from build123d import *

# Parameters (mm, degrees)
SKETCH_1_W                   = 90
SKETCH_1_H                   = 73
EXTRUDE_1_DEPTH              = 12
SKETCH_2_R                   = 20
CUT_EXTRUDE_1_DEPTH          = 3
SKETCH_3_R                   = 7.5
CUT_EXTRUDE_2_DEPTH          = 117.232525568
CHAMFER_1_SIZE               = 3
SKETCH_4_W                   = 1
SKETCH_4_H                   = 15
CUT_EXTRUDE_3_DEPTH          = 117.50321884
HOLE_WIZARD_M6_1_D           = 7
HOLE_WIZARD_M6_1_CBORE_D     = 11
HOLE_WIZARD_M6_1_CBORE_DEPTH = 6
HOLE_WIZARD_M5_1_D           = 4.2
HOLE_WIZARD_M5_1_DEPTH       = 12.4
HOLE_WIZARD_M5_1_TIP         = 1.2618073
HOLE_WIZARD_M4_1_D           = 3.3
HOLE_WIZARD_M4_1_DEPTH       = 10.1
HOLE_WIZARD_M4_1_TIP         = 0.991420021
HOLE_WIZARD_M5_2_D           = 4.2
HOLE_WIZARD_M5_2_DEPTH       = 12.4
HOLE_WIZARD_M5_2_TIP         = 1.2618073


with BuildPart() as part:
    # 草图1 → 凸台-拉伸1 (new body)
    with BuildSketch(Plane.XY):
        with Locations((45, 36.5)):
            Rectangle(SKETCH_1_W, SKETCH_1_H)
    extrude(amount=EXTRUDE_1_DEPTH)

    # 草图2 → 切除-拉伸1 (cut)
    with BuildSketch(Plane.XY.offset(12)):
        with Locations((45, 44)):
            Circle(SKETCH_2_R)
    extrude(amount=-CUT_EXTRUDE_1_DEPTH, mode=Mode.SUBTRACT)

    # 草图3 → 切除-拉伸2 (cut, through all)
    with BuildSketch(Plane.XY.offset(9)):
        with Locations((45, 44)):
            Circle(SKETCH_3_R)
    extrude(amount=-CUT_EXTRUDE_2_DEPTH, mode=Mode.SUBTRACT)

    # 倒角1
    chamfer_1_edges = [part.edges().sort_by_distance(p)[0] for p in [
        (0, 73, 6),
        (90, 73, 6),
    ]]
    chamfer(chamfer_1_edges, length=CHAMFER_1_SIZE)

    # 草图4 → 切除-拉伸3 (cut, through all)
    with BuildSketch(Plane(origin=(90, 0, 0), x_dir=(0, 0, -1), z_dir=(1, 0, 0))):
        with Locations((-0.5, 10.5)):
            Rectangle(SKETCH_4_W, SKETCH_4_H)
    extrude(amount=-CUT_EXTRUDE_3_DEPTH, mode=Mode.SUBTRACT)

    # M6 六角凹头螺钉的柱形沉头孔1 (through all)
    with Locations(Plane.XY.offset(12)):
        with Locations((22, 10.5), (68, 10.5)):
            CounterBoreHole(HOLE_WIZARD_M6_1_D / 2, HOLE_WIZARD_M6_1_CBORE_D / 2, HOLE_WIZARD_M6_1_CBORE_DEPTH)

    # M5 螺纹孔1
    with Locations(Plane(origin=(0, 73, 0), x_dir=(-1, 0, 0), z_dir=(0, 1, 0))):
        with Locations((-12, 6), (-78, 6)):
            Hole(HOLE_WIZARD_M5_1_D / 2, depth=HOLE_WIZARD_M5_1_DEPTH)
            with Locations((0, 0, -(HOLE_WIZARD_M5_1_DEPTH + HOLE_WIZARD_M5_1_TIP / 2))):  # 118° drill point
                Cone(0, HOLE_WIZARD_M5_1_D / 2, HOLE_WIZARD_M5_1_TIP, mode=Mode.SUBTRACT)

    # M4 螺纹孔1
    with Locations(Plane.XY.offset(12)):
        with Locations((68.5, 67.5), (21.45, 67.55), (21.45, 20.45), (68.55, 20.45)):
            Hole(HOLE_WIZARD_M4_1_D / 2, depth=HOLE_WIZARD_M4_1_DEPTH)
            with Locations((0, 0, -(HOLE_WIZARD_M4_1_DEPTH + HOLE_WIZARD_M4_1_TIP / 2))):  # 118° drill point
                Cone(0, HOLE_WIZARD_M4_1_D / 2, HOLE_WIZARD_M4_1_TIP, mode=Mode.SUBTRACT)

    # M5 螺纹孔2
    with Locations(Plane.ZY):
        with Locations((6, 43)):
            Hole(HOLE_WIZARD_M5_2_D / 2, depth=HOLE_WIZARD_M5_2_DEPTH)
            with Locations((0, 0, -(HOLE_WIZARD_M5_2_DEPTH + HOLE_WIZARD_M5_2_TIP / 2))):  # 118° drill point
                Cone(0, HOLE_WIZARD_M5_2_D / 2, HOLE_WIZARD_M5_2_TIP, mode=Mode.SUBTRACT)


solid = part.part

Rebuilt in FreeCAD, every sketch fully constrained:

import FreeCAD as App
import Part
import Sketcher
from FreeCAD import Vector


def edges_at(feature, points):
    """Names of the edges that pass closest to the given points."""
    edges = feature.Shape.Edges
    near = lambda p: min(range(len(edges)), key=lambda i: edges[i].distToShape(Part.Vertex(*p))[0])
    return sorted({f"Edge{near(p) + 1}" for p in points})

doc = App.newDocument("Part")
body = doc.addObject("PartDesign::Body", "Body")

# Sketch on XY plane
sketch1 = body.newObject("Sketcher::SketchObject", "Sketch")
sketch1.AttachmentSupport = (doc.getObject("XY_Plane"), [""])
sketch1.MapMode = "FlatFace"
sketch1.addGeometry([
    Part.LineSegment(Vector(0, 73, 0), Vector(0, 0, 0)),
    Part.LineSegment(Vector(0, 0, 0), Vector(90, 0, 0)),
    Part.LineSegment(Vector(90, 0, 0), Vector(90, 73, 0)),
    Part.LineSegment(Vector(90, 73, 0), Vector(0, 73, 0)),
], False)
sketch1.addConstraint([
    Sketcher.Constraint("Coincident", 0, 2, 1, 1),
    Sketcher.Constraint("Coincident", 1, 2, 2, 1),
    Sketcher.Constraint("Coincident", 2, 2, 3, 1),
    Sketcher.Constraint("Coincident", 3, 2, 0, 1),
    Sketcher.Constraint("Vertical", 0),
    Sketcher.Constraint("Horizontal", 1),
    Sketcher.Constraint("Vertical", 2),
    Sketcher.Constraint("Horizontal", 3),
    Sketcher.Constraint("Coincident", 0, 2, -1, 1),
    Sketcher.Constraint("DistanceX", 1, 1, 1, 2, 90.0),
    Sketcher.Constraint("DistanceY", 0, 2, 0, 1, 73.0),
])
pad1 = body.newObject("PartDesign::Pad", "Pad")
pad1.Profile = sketch1
pad1.Length = 12

# Sketch on XY plane
sketch2 = body.newObject("Sketcher::SketchObject", "Sketch001")
sketch2.AttachmentSupport = (doc.getObject("XY_Plane"), [""])
sketch2.MapMode = "FlatFace"
sketch2.AttachmentOffset = App.Placement(Vector(0, 0, 12), App.Rotation())
sketch2.addGeometry(Part.Circle(Vector(45, 44, 0), Vector(0, 0, 1), 20), False)
sketch2.addConstraint([
    Sketcher.Constraint("Diameter", 0, 40.0),
    Sketcher.Constraint("DistanceX", -1, 1, 0, 3, 45.0),
    Sketcher.Constraint("DistanceY", -1, 1, 0, 3, 44.0),
])
pocket1 = body.newObject("PartDesign::Pocket", "Pocket")
pocket1.Profile = sketch2
pocket1.Length = 3

# Sketch on XY plane
sketch3 = body.newObject("Sketcher::SketchObject", "Sketch002")
sketch3.AttachmentSupport = (doc.getObject("XY_Plane"), [""])
sketch3.MapMode = "FlatFace"
sketch3.AttachmentOffset = App.Placement(Vector(0, 0, 9), App.Rotation())
sketch3.addGeometry(Part.Circle(Vector(45, 44, 0), Vector(0, 0, 1), 7.5), False)
sketch3.addConstraint([
    Sketcher.Constraint("Diameter", 0, 15.0),
    Sketcher.Constraint("DistanceX", -1, 1, 0, 3, 45.0),
    Sketcher.Constraint("DistanceY", -1, 1, 0, 3, 44.0),
])
pocket2 = body.newObject("PartDesign::Pocket", "Pocket001")
pocket2.Profile = sketch3
pocket2.Type = "ThroughAll"
doc.recompute()

chamfer = body.newObject("PartDesign::Chamfer", "Chamfer")
chamfer.Base = (pocket2, edges_at(pocket2, [(0, 73, 6), (90, 73, 6)]))
chamfer.Size = 3

# Sketch on YZ plane
sketch4 = body.newObject("Sketcher::SketchObject", "Sketch003")
sketch4.AttachmentSupport = (doc.getObject("YZ_Plane"), [""])
sketch4.MapMode = "FlatFace"
sketch4.AttachmentOffset = App.Placement(Vector(0, 0, 90), App.Rotation())
sketch4.addGeometry([
    Part.LineSegment(Vector(18, 1, 0), Vector(3, 1, 0)),
    Part.LineSegment(Vector(3, 1, 0), Vector(3, 0, 0)),
    Part.LineSegment(Vector(3, 0, 0), Vector(18, 0, 0)),
    Part.LineSegment(Vector(18, 0, 0), Vector(18, 1, 0)),
], False)
sketch4.addConstraint([
    Sketcher.Constraint("Coincident", 0, 2, 1, 1),
    Sketcher.Constraint("Coincident", 1, 2, 2, 1),
    Sketcher.Constraint("Coincident", 2, 2, 3, 1),
    Sketcher.Constraint("Coincident", 3, 2, 0, 1),
    Sketcher.Constraint("Horizontal", 0),
    Sketcher.Constraint("Vertical", 1),
    Sketcher.Constraint("Horizontal", 2),
    Sketcher.Constraint("Vertical", 3),
    Sketcher.Constraint("PointOnObject", 1, 2, -1),
    Sketcher.Constraint("DistanceX", 0, 2, 0, 1, 15.0),
    Sketcher.Constraint("DistanceY", 1, 2, 1, 1, 1.0),
    Sketcher.Constraint("DistanceX", -1, 1, 0, 2, 3.0),
])
pocket3 = body.newObject("PartDesign::Pocket", "Pocket002")
pocket3.Profile = sketch4
pocket3.Type = "ThroughAll"

# Sketch on XY plane
sketch5 = body.newObject("Sketcher::SketchObject", "Sketch004")
sketch5.AttachmentSupport = (doc.getObject("XY_Plane"), [""])
sketch5.MapMode = "FlatFace"
sketch5.AttachmentOffset = App.Placement(Vector(0, 0, 12), App.Rotation())
sketch5.addGeometry([
    Part.Circle(Vector(22, 10.5, 0), Vector(0, 0, 1), 3.5),
    Part.Circle(Vector(68, 10.5, 0), Vector(0, 0, 1), 3.5),
], False)
sketch5.addConstraint([
    Sketcher.Constraint("Equal", 0, 1),
    Sketcher.Constraint("Horizontal", 0, 3, 1, 3),
    Sketcher.Constraint("Diameter", 0, 7.0),
    Sketcher.Constraint("DistanceX", -1, 1, 0, 3, 22.0),
    Sketcher.Constraint("DistanceX", -1, 1, 1, 3, 68.0),
    Sketcher.Constraint("DistanceY", -1, 1, 0, 3, 10.5),
])
doc.recompute()
hole = body.newObject("PartDesign::Hole", "Hole")
hole.Profile = sketch5
hole.ThreadType = "None"
hole.Diameter = 7
hole.DepthType = "ThroughAll"
hole.HoleCutType = "Counterbore"
hole.HoleCutDiameter = 11
hole.HoleCutDepth = 6

# Sketch on XZ plane
sketch6 = body.newObject("Sketcher::SketchObject", "Sketch005")
sketch6.AttachmentSupport = (doc.getObject("XZ_Plane"), [""])
sketch6.MapMode = "FlatFace"
sketch6.AttachmentOffset = App.Placement(Vector(0, 0, -73), App.Rotation())
sketch6.addGeometry([
    Part.Circle(Vector(12, 6, 0), Vector(0, 0, 1), 2.1),
    Part.Circle(Vector(78, 6, 0), Vector(0, 0, 1), 2.1),
], False)
sketch6.addConstraint([
    Sketcher.Constraint("Equal", 0, 1),
    Sketcher.Constraint("Horizontal", 0, 3, 1, 3),
    Sketcher.Constraint("Diameter", 0, 4.2),
    Sketcher.Constraint("DistanceX", -1, 1, 0, 3, 12.0),
    Sketcher.Constraint("DistanceY", -1, 1, 0, 3, 6.0),
    Sketcher.Constraint("DistanceX", -1, 1, 1, 3, 78.0),
])
doc.recompute()
hole2 = body.newObject("PartDesign::Hole", "Hole001")
hole2.Profile = sketch6
hole2.ThreadType = "None"
hole2.Diameter = 4.2
hole2.DepthType = "Dimension"
hole2.Depth = 12.4
hole2.DrillPoint = "Angled"
hole2.DrillPointAngle = 118
hole2.Reversed = True

# Sketch on XY plane
sketch7 = body.newObject("Sketcher::SketchObject", "Sketch006")
sketch7.AttachmentSupport = (doc.getObject("XY_Plane"), [""])
sketch7.MapMode = "FlatFace"
sketch7.AttachmentOffset = App.Placement(Vector(0, 0, 12), App.Rotation())
sketch7.addGeometry([
    Part.Circle(Vector(68.5, 67.5, 0), Vector(0, 0, 1), 1.65),
    Part.Circle(Vector(21.45, 67.55, 0), Vector(0, 0, 1), 1.65),
    Part.Circle(Vector(21.45, 20.45, 0), Vector(0, 0, 1), 1.65),
    Part.Circle(Vector(68.55, 20.45, 0), Vector(0, 0, 1), 1.65),
], False)
sketch7.addConstraint([
    Sketcher.Constraint("Equal", 0, 1),
    Sketcher.Constraint("Equal", 1, 2),
    Sketcher.Constraint("Equal", 2, 3),
    Sketcher.Constraint("Horizontal", 2, 3, 3, 3),
    Sketcher.Constraint("Vertical", 1, 3, 2, 3),
    Sketcher.Constraint("Diameter", 0, 3.3),
    Sketcher.Constraint("DistanceX", -1, 1, 0, 3, 68.5),
    Sketcher.Constraint("DistanceY", -1, 1, 0, 3, 67.5),
    Sketcher.Constraint("DistanceY", 2, 3, 1, 3, 47.1),
    Sketcher.Constraint("DistanceX", 2, 3, 3, 3, 47.1),
    Sketcher.Constraint("DistanceX", -1, 1, 1, 3, 21.45),
    Sketcher.Constraint("DistanceY", -1, 1, 1, 3, 67.55),
])
doc.recompute()
hole3 = body.newObject("PartDesign::Hole", "Hole002")
hole3.Profile = sketch7
hole3.ThreadType = "None"
hole3.Diameter = 3.3
hole3.DepthType = "Dimension"
hole3.Depth = 10.1
hole3.DrillPoint = "Angled"
hole3.DrillPointAngle = 118

# Sketch on YZ plane
sketch8 = body.newObject("Sketcher::SketchObject", "Sketch007")
sketch8.AttachmentSupport = (doc.getObject("YZ_Plane"), [""])
sketch8.MapMode = "FlatFace"
sketch8.addGeometry(Part.Circle(Vector(43, 6, 0), Vector(0, 0, 1), 2.1), False)
sketch8.addConstraint([
    Sketcher.Constraint("Diameter", 0, 4.2),
    Sketcher.Constraint("DistanceX", -1, 1, 0, 3, 43.0),
    Sketcher.Constraint("DistanceY", -1, 1, 0, 3, 6.0),
])
doc.recompute()
hole4 = body.newObject("PartDesign::Hole", "Hole003")
hole4.Profile = sketch8
hole4.ThreadType = "None"
hole4.Diameter = 4.2
hole4.DepthType = "Dimension"
hole4.Depth = 12.4
hole4.DrillPoint = "Angled"
hole4.DrillPointAngle = 118
hole4.Reversed = True

doc.recompute()
